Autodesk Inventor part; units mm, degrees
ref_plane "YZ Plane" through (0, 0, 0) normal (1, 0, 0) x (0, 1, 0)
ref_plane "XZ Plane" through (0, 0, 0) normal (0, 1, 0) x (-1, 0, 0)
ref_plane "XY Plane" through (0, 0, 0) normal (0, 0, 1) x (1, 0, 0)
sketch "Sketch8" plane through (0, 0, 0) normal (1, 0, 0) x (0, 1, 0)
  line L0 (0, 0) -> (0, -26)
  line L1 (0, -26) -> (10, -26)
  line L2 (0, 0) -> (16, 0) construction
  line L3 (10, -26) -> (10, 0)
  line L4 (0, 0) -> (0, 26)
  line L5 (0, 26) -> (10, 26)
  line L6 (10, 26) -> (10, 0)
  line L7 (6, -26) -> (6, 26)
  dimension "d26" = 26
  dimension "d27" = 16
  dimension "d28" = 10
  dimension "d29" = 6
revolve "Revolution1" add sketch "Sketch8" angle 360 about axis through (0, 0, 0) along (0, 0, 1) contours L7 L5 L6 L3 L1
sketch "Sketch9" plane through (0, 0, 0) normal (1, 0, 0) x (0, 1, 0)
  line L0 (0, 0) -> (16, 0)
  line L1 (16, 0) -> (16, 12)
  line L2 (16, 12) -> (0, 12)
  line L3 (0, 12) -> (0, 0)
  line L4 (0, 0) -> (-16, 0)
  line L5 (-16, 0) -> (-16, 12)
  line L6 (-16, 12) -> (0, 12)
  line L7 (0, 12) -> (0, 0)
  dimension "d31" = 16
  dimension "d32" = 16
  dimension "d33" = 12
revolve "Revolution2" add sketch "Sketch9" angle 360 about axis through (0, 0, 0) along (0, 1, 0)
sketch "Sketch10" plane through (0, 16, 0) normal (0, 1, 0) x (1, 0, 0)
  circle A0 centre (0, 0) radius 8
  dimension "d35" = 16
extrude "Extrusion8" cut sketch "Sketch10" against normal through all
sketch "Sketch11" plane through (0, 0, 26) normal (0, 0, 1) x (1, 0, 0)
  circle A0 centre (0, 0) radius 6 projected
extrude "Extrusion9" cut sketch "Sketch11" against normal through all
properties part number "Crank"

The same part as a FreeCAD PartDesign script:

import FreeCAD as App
import Part
import Sketcher
from FreeCAD import Vector
Q = App.Units.Quantity


def add_polygon(sketch, points):
    """Adds a closed chain of lines whose ends are joined by coincident constraints."""
    first, n = sketch.GeometryCount, len(points)
    for a, b in zip(points, points[1:] + points[:1]):
        sketch.addGeometry(Part.LineSegment(App.Vector(*a, 0), App.Vector(*b, 0)), False)
    for i in range(n):
        sketch.addConstraint(Sketcher.Constraint("Coincident", first + i, 2, first + (i + 1) % n, 1))

doc = App.newDocument("Part")
body = doc.addObject("PartDesign::Body", "Body")

# Sketch on YZ plane
sketch1 = body.newObject("Sketcher::SketchObject", "Sketch")
sketch1.AttachmentSupport = (doc.getObject("YZ_Plane"), [""])
sketch1.MapMode = "FlatFace"
add_polygon(sketch1, [(6, 26), (6, -26), (10, -26), (10, 26)])  # lines 0-3
sketch1.addConstraint([
    Sketcher.Constraint("Vertical", 0),
    Sketcher.Constraint("Horizontal", 1),
    Sketcher.Constraint("Vertical", 2),
    Sketcher.Constraint("Horizontal", 3),
    Sketcher.Constraint("DistanceX", -1, 1, 0, 2, Q("6 mm")),
    Sketcher.Constraint("DistanceY", 0, 2, -1, 1, Q("26 mm")),
    Sketcher.Constraint("DistanceX", -1, 1, 1, 2, Q("10 mm")),
    Sketcher.Constraint("DistanceY", -1, 1, 2, 2, Q("26 mm")),
])
revolution = body.newObject("PartDesign::Revolution", "Revolution")
revolution.Profile = sketch1
revolution.ReferenceAxis = (sketch1, ["V_Axis"])
revolution.Angle = 360

# Sketch on YZ plane
sketch2 = body.newObject("Sketcher::SketchObject", "Sketch001")
sketch2.AttachmentSupport = (doc.getObject("YZ_Plane"), [""])
sketch2.MapMode = "FlatFace"
add_polygon(sketch2, [(16, 12), (-16, 12), (-16, 0), (16, 0)])  # lines 0-3
sketch2.addConstraint([
    Sketcher.Constraint("Horizontal", 0),
    Sketcher.Constraint("Vertical", 1),
    Sketcher.Constraint("Horizontal", 2),
    Sketcher.Constraint("Vertical", 3),
    Sketcher.Constraint("Symmetric", 1, 2, 2, 2, -1, 1),
    Sketcher.Constraint("DistanceY", 1, 2, 1, 1, Q("12 mm")),
    Sketcher.Constraint("DistanceX", 0, 2, -1, 1, Q("16 mm")),
])
revolution2 = body.newObject("PartDesign::Revolution", "Revolution001")
revolution2.Profile = sketch2
revolution2.ReferenceAxis = (sketch2, ["H_Axis"])
revolution2.Angle = 360

# Sketch on XZ plane
sketch3 = body.newObject("Sketcher::SketchObject", "Sketch002")
sketch3.AttachmentSupport = (doc.getObject("XZ_Plane"), [""])
sketch3.MapMode = "FlatFace"
sketch3.AttachmentOffset = App.Placement(Vector(0, 0, -16), App.Rotation())
sketch3.addGeometry(Part.Circle(Vector(0, 0, 0), Vector(0, 0, 1), 8), False)
sketch3.addConstraint([
    Sketcher.Constraint("Coincident", 0, 3, -1, 1),
    Sketcher.Constraint("Diameter", 0, Q("16 mm")),
])
pocket1 = body.newObject("PartDesign::Pocket", "Pocket")
pocket1.Profile = sketch3
pocket1.Type = "ThroughAll"
pocket1.Reversed = True

# Sketch on XY plane
sketch4 = body.newObject("Sketcher::SketchObject", "Sketch003")
sketch4.AttachmentSupport = (doc.getObject("XY_Plane"), [""])
sketch4.MapMode = "FlatFace"
sketch4.AttachmentOffset = App.Placement(Vector(0, 0, 26), App.Rotation())
sketch4.addGeometry(Part.Circle(Vector(0, 0, 0), Vector(0, 0, 1), 6), False)
sketch4.addConstraint([
    Sketcher.Constraint("Coincident", 0, 3, -1, 1),
    Sketcher.Constraint("Diameter", 0, Q("12 mm")),
])
pocket2 = body.newObject("PartDesign::Pocket", "Pocket001")
pocket2.Profile = sketch4
pocket2.Type = "ThroughAll"

doc.recompute()
